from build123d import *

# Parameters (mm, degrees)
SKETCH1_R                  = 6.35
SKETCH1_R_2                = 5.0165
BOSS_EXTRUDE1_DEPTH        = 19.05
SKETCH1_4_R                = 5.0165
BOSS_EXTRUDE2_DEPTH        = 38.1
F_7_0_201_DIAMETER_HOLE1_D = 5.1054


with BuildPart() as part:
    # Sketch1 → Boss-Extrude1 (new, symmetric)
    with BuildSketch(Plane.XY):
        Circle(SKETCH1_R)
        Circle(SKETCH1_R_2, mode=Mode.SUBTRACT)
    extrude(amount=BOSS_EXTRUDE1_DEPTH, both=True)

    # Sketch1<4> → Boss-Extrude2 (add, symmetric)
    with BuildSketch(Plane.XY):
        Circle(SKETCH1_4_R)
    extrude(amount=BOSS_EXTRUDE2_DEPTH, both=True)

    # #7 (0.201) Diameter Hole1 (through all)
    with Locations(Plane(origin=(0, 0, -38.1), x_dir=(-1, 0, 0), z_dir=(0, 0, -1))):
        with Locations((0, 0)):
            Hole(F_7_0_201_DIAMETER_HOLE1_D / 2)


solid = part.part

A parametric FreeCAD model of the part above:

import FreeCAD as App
import Part
import Sketcher
from FreeCAD import Vector
Q = App.Units.Quantity

doc = App.newDocument("Part")
params = doc.addObject("Spreadsheet::Sheet", "Params")
for row, (alias, value) in enumerate([
    ("sketch1_diameter", "0.5 in"),
    ("sketch1_diameter2", "0.395 in"),
    ("pad1_length", "1.5 in"),
    ("sketch2_diameter", "0.395 in"),
    ("pad2_length", "3 in"),
    ("sketch3_diameter", "0.201 in"),
    ("hole_diameter", "0.201 in"),
], start=1):
    params.set(f"A{row}", alias)
    params.set(f"B{row}", "=" + value)
    params.setAlias(f"B{row}", alias)

body = doc.addObject("PartDesign::Body", "Body")

sketch1 = body.newObject("Sketcher::SketchObject", "Sketch")
sketch1.AttachmentSupport = (doc.getObject("XY_Plane"), [""])
sketch1.MapMode = "FlatFace"
sketch1.addGeometry([
    Part.Circle(Vector(0, 0, 0), Vector(0, 0, 1), 6.35),
    Part.Circle(Vector(0, 0, 0), Vector(0, 0, 1), 5.0165),
], False)
sketch1.addConstraint([
    Sketcher.Constraint("Coincident", 0, 3, -1, 1),
    Sketcher.Constraint("Coincident", 1, 3, -1, 1),
    Sketcher.Constraint("Diameter", 0, Q("0.5 in")),
    Sketcher.Constraint("Diameter", 1, Q("0.395 in")),
])
sketch1.setExpression("Constraints[2]", "Params.sketch1_diameter")
sketch1.setExpression("Constraints[3]", "Params.sketch1_diameter2")
pad1 = body.newObject("PartDesign::Pad", "Pad")
pad1.Profile = sketch1
pad1.setExpression("Length", "Params.pad1_length")
pad1.Midplane = True

sketch2 = body.newObject("Sketcher::SketchObject", "Sketch001")
sketch2.AttachmentSupport = (doc.getObject("XY_Plane"), [""])
sketch2.MapMode = "FlatFace"
sketch2.addGeometry(Part.Circle(Vector(0, 0, 0), Vector(0, 0, 1), 5.0165), False)
sketch2.addConstraint([
    Sketcher.Constraint("Coincident", 0, 3, -1, 1),
    Sketcher.Constraint("Diameter", 0, Q("0.395 in")),
])
sketch2.setExpression("Constraints[1]", "Params.sketch2_diameter")
pad2 = body.newObject("PartDesign::Pad", "Pad001")
pad2.Profile = sketch2
pad2.setExpression("Length", "Params.pad2_length")
pad2.Midplane = True

sketch3 = body.newObject("Sketcher::SketchObject", "Sketch002")
sketch3.AttachmentSupport = (doc.getObject("XY_Plane"), [""])
sketch3.MapMode = "FlatFace"
sketch3.AttachmentOffset = App.Placement(Vector(0, 0, -1.5 * 25.4), App.Rotation())
sketch3.addGeometry(Part.Circle(Vector(0, 0, 0), Vector(0, 0, 1), 2.5527), False)
sketch3.addConstraint([
    Sketcher.Constraint("Coincident", 0, 3, -1, 1),
    Sketcher.Constraint("Diameter", 0, Q("0.201 in")),
])
sketch3.setExpression("Constraints[1]", "Params.sketch3_diameter")
doc.recompute()
hole = body.newObject("PartDesign::Hole", "Hole")
hole.Profile = sketch3
hole.ThreadType = "None"
hole.setExpression("Diameter", "Params.hole_diameter")
hole.DepthType = "ThroughAll"
hole.Reversed = True

doc.recompute()
